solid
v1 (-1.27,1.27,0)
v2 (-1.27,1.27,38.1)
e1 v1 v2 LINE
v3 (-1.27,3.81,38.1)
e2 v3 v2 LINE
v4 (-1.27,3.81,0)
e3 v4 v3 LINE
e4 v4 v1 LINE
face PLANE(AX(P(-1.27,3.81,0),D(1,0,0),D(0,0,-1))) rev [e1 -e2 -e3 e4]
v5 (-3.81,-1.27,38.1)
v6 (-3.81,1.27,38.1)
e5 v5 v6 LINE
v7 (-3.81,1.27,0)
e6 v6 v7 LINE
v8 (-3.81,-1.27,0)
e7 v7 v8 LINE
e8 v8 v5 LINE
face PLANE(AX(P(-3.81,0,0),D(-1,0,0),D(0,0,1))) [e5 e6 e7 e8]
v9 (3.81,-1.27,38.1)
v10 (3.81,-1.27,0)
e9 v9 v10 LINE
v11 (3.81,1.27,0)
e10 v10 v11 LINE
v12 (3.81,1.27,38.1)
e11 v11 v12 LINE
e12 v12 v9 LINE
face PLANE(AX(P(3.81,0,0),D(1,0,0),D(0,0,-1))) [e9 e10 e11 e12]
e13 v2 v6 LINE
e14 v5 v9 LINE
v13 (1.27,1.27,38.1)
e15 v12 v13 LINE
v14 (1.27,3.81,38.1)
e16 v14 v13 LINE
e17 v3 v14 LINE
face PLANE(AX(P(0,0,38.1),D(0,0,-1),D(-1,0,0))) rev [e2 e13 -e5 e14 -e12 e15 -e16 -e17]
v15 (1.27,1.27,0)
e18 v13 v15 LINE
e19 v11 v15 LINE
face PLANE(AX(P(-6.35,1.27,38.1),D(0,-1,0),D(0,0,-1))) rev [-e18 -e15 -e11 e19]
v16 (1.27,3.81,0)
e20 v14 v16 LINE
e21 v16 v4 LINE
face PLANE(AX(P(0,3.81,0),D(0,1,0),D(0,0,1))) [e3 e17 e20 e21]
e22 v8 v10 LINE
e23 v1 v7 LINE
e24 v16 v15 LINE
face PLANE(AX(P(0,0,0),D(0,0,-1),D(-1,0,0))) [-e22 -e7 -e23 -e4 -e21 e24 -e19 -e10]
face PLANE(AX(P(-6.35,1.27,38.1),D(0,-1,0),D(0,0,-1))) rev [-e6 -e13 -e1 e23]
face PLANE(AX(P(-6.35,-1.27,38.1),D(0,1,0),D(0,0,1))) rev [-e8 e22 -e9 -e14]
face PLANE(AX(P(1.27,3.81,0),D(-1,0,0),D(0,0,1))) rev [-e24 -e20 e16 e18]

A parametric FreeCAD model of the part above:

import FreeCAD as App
import Part
import Sketcher
from FreeCAD import Vector
Q = App.Units.Quantity

doc = App.newDocument("Part")
params = doc.addObject("Spreadsheet::Sheet", "Params")
for row, (alias, value) in enumerate([
    ("sketch1_width", "0.5 in"),
    ("sketch1_height", "0.1 in"),
    ("pad1_length", "1.5 in"),
    ("sketch2_width", "0.1 in"),
    ("sketch2_height", "1.5 in"),
    ("pocket1_length", "0.1 in"),
    ("sketch3_width", "0.1 in"),
    ("sketch3_height", "1.5 in"),
    ("pocket2_length", "0.1 in"),
    ("sketch4_width", "0.1 in"),
    ("sketch4_height", "1.5 in"),
    ("pad2_length", "0.1 in"),
], start=1):
    params.set(f"A{row}", alias)
    params.set(f"B{row}", "=" + value)
    params.setAlias(f"B{row}", alias)

body = doc.addObject("PartDesign::Body", "Body")

sketch1 = body.newObject("Sketcher::SketchObject", "Sketch")
sketch1.AttachmentSupport = (doc.getObject("XY_Plane"), [""])
sketch1.MapMode = "FlatFace"
sketch1.addGeometry([
    Part.LineSegment(Vector(-6.35, 1.27, 0), Vector(-6.35, -1.27, 0)),
    Part.LineSegment(Vector(-6.35, -1.27, 0), Vector(6.35, -1.27, 0)),
    Part.LineSegment(Vector(6.35, -1.27, 0), Vector(6.35, 1.27, 0)),
    Part.LineSegment(Vector(6.35, 1.27, 0), Vector(-6.35, 1.27, 0)),
], False)
sketch1.addConstraint([
    Sketcher.Constraint("Coincident", 0, 2, 1, 1),
    Sketcher.Constraint("Coincident", 1, 2, 2, 1),
    Sketcher.Constraint("Coincident", 2, 2, 3, 1),
    Sketcher.Constraint("Coincident", 3, 2, 0, 1),
    Sketcher.Constraint("Vertical", 0),
    Sketcher.Constraint("Horizontal", 1),
    Sketcher.Constraint("Vertical", 2),
    Sketcher.Constraint("Horizontal", 3),
    Sketcher.Constraint("Symmetric", 0, 2, 2, 2, -1, 1),
    Sketcher.Constraint("DistanceX", 1, 1, 1, 2, Q("0.5 in")),
    Sketcher.Constraint("DistanceY", 0, 2, 0, 1, Q("0.1 in")),
])
sketch1.setExpression("Constraints[9]", "Params.sketch1_width")
sketch1.setExpression("Constraints[10]", "Params.sketch1_height")
pad1 = body.newObject("PartDesign::Pad", "Pad")
pad1.Profile = sketch1
pad1.setExpression("Length", "Params.pad1_length")

sketch2 = body.newObject("Sketcher::SketchObject", "Sketch001")
sketch2.AttachmentSupport = (doc.getObject("YZ_Plane"), [""])
sketch2.MapMode = "FlatFace"
sketch2.AttachmentOffset = App.Placement(Vector(0, 0, 0.25 * 25.4), App.Rotation())
sketch2.addGeometry([
    Part.LineSegment(Vector(1.27, 38.1, 0), Vector(-1.27, 38.1, 0)),
    Part.LineSegment(Vector(-1.27, 38.1, 0), Vector(-1.27, 0, 0)),
    Part.LineSegment(Vector(-1.27, 0, 0), Vector(1.27, 0, 0)),
    Part.LineSegment(Vector(1.27, 0, 0), Vector(1.27, 38.1, 0)),
], False)
sketch2.addConstraint([
    Sketcher.Constraint("Coincident", 0, 2, 1, 1),
    Sketcher.Constraint("Coincident", 1, 2, 2, 1),
    Sketcher.Constraint("Coincident", 2, 2, 3, 1),
    Sketcher.Constraint("Coincident", 3, 2, 0, 1),
    Sketcher.Constraint("Horizontal", 0),
    Sketcher.Constraint("Vertical", 1),
    Sketcher.Constraint("Horizontal", 2),
    Sketcher.Constraint("Vertical", 3),
    Sketcher.Constraint("Symmetric", 1, 2, 2, 2, -1, 1),
    Sketcher.Constraint("DistanceX", 0, 2, 0, 1, Q("0.1 in")),
    Sketcher.Constraint("DistanceY", 1, 2, 1, 1, Q("1.5 in")),
])
sketch2.setExpression("Constraints[9]", "Params.sketch2_width")
sketch2.setExpression("Constraints[10]", "Params.sketch2_height")
pocket1 = body.newObject("PartDesign::Pocket", "Pocket")
pocket1.Profile = sketch2
pocket1.setExpression("Length", "Params.pocket1_length")

sketch3 = body.newObject("Sketcher::SketchObject", "Sketch002")
sketch3.AttachmentSupport = (doc.getObject("YZ_Plane"), [""])
sketch3.MapMode = "FlatFace"
sketch3.AttachmentOffset = App.Placement(Vector(0, 0, -0.25 * 25.4), App.Rotation())
sketch3.addGeometry([
    Part.LineSegment(Vector(1.27, 0, 0), Vector(-1.27, 0, 0)),
    Part.LineSegment(Vector(-1.27, 0, 0), Vector(-1.27, 38.1, 0)),
    Part.LineSegment(Vector(-1.27, 38.1, 0), Vector(1.27, 38.1, 0)),
    Part.LineSegment(Vector(1.27, 38.1, 0), Vector(1.27, 0, 0)),
], False)
sketch3.addConstraint([
    Sketcher.Constraint("Coincident", 0, 2, 1, 1),
    Sketcher.Constraint("Coincident", 1, 2, 2, 1),
    Sketcher.Constraint("Coincident", 2, 2, 3, 1),
    Sketcher.Constraint("Coincident", 3, 2, 0, 1),
    Sketcher.Constraint("Horizontal", 0),
    Sketcher.Constraint("Vertical", 1),
    Sketcher.Constraint("Horizontal", 2),
    Sketcher.Constraint("Vertical", 3),
    Sketcher.Constraint("Symmetric", 0, 2, 3, 2, -1, 1),
    Sketcher.Constraint("DistanceX", 0, 2, 0, 1, Q("0.1 in")),
    Sketcher.Constraint("DistanceY", 1, 1, 1, 2, Q("1.5 in")),
])
sketch3.setExpression("Constraints[9]", "Params.sketch3_width")
sketch3.setExpression("Constraints[10]", "Params.sketch3_height")
pocket2 = body.newObject("PartDesign::Pocket", "Pocket001")
pocket2.Profile = sketch3
pocket2.setExpression("Length", "Params.pocket2_length")
pocket2.Reversed = True

sketch4 = body.newObject("Sketcher::SketchObject", "Sketch003")
sketch4.AttachmentSupport = (doc.getObject("XZ_Plane"), [""])
sketch4.MapMode = "FlatFace"
sketch4.AttachmentOffset = App.Placement(Vector(0, 0, -0.05 * 25.4), App.Rotation())
sketch4.addGeometry([
    Part.LineSegment(Vector(-1.27, 0, 0), Vector(-1.27, 38.1, 0)),
    Part.LineSegment(Vector(-1.27, 38.1, 0), Vector(1.27, 38.1, 0)),
    Part.LineSegment(Vector(1.27, 38.1, 0), Vector(1.27, 0, 0)),
    Part.LineSegment(Vector(1.27, 0, 0), Vector(-1.27, 0, 0)),
], False)
sketch4.addConstraint([
    Sketcher.Constraint("Coincident", 0, 2, 1, 1),
    Sketcher.Constraint("Coincident", 1, 2, 2, 1),
    Sketcher.Constraint("Coincident", 2, 2, 3, 1),
    Sketcher.Constraint("Coincident", 3, 2, 0, 1),
    Sketcher.Constraint("Vertical", 0),
    Sketcher.Constraint("Horizontal", 1),
    Sketcher.Constraint("Vertical", 2),
    Sketcher.Constraint("Horizontal", 3),
    Sketcher.Constraint("Symmetric", 2, 2, 3, 2, -1, 1),
    Sketcher.Constraint("DistanceX", 1, 1, 1, 2, Q("0.1 in")),
    Sketcher.Constraint("DistanceY", 0, 1, 0, 2, Q("1.5 in")),
])
sketch4.setExpression("Constraints[9]", "Params.sketch4_width")
sketch4.setExpression("Constraints[10]", "Params.sketch4_height")
pad2 = body.newObject("PartDesign::Pad", "Pad001")
pad2.Profile = sketch4
pad2.setExpression("Length", "Params.pad2_length")
pad2.Reversed = True

doc.recompute()
